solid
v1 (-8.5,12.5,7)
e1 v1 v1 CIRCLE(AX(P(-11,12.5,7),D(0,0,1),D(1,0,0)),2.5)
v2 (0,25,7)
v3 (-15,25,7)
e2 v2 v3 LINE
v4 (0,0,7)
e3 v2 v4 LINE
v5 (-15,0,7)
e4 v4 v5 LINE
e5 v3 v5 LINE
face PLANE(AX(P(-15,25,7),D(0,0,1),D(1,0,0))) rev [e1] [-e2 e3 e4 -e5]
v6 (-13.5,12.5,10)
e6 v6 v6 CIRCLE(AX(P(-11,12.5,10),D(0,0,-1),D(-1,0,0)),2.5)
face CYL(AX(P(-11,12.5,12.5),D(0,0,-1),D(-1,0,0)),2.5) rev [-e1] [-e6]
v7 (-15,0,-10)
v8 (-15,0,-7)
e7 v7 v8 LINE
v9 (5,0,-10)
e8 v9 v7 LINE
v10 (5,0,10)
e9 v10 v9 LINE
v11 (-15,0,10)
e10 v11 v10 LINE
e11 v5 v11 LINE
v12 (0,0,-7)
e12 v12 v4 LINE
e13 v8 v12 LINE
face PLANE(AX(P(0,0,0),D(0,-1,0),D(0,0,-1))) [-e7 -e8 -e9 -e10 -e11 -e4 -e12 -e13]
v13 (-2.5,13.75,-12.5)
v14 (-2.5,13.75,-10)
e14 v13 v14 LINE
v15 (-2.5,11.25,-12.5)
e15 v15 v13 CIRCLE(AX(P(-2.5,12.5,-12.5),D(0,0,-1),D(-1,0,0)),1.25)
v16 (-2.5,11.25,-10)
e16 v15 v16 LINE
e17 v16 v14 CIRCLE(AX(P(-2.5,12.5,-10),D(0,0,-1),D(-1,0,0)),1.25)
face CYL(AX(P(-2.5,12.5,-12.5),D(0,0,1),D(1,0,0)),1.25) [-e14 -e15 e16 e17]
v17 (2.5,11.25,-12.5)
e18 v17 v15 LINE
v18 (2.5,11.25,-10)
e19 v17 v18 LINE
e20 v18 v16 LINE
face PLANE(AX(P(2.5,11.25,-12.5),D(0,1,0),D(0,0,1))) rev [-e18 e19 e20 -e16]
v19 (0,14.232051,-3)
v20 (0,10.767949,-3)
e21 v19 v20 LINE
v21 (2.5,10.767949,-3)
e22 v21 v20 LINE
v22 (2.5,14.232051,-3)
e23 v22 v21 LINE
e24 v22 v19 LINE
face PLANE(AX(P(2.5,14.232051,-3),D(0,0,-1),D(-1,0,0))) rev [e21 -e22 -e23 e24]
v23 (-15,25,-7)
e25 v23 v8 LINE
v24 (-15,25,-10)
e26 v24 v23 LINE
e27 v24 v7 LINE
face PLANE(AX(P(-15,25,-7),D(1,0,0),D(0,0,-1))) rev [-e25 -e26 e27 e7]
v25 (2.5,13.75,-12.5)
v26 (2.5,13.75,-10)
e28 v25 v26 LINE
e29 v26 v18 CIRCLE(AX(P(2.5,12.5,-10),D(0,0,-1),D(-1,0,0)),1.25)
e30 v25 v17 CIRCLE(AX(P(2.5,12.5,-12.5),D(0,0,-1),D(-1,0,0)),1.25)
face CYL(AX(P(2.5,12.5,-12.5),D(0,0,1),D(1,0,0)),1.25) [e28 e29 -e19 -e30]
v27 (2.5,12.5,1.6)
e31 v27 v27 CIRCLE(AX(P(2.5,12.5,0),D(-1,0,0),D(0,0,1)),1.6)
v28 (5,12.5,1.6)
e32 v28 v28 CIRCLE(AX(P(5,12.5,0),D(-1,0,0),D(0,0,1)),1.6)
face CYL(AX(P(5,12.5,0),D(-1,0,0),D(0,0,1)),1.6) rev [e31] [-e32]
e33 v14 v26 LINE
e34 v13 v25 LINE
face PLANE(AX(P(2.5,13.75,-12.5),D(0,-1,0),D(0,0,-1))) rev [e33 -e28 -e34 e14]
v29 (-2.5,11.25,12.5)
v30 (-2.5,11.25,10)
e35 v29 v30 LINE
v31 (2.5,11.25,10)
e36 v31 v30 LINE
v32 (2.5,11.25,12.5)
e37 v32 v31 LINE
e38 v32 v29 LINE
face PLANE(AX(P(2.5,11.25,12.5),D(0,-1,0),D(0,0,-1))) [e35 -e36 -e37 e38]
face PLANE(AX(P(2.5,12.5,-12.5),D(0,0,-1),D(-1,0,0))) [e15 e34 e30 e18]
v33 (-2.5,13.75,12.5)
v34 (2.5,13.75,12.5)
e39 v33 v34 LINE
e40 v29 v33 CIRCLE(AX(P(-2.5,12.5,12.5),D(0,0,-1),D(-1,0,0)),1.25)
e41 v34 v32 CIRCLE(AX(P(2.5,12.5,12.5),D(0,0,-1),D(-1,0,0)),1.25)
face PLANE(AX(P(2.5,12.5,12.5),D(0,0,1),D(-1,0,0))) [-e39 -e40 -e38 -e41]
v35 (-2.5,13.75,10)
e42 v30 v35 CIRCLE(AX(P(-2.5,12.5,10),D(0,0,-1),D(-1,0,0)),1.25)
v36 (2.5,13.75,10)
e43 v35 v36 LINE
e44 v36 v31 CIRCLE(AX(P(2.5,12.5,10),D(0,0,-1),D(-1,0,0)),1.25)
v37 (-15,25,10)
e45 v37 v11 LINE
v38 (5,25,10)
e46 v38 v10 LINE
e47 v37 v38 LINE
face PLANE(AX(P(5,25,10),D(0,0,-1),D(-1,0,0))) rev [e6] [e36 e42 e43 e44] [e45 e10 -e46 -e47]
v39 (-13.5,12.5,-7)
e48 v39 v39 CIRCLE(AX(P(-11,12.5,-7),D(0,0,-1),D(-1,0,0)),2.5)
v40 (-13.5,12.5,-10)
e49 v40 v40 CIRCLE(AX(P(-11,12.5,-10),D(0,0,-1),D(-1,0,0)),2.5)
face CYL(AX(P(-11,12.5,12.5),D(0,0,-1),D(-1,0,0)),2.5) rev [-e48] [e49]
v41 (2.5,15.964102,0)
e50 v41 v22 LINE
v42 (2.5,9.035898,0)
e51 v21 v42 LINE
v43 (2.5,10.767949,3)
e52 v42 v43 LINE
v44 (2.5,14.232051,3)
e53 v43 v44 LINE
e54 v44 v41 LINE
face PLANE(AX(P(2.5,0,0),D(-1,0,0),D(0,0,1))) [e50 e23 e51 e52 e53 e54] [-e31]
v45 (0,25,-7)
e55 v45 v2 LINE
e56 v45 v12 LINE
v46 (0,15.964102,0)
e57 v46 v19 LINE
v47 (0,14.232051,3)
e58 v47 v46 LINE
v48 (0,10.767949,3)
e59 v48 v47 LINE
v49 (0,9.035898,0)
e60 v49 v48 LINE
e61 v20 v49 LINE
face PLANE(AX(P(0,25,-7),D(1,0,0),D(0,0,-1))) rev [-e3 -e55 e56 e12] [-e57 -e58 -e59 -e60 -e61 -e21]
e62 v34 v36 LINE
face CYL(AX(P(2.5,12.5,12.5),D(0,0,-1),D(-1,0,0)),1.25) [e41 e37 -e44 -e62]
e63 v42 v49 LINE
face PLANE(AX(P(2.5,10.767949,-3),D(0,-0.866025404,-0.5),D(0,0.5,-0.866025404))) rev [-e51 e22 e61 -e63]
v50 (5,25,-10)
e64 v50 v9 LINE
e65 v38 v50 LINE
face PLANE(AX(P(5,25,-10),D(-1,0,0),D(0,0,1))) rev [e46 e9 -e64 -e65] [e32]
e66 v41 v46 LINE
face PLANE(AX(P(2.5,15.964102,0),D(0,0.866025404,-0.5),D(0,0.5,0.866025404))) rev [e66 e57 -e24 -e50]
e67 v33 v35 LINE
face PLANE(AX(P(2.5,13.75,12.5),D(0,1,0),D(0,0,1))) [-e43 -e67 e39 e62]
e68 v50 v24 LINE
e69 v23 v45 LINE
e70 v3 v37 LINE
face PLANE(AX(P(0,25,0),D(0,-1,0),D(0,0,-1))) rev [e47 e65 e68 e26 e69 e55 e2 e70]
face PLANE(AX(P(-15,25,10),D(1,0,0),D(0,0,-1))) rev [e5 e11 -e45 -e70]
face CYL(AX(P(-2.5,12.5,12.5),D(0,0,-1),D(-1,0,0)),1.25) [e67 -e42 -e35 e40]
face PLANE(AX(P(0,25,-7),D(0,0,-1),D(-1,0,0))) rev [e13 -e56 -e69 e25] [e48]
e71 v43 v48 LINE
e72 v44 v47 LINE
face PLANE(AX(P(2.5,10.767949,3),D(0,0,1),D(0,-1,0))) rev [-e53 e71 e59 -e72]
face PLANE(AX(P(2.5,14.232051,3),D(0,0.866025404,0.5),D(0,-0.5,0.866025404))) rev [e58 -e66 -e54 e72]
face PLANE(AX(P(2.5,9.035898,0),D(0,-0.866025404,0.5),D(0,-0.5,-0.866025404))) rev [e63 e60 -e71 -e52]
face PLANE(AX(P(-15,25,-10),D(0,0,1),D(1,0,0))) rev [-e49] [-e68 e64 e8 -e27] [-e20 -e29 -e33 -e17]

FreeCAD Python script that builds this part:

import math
import FreeCAD as App
import Part
import Sketcher

V = App.Vector
Q = App.Units.Quantity


def add_polygon(sketch, points):
    """Adds a closed chain of lines whose ends are joined by coincident constraints."""
    first, n = sketch.GeometryCount, len(points)
    for a, b in zip(points, points[1:] + points[:1]):
        sketch.addGeometry(Part.LineSegment(App.Vector(*a, 0), App.Vector(*b, 0)), False)
    for i in range(n):
        sketch.addConstraint(Sketcher.Constraint("Coincident", first + i, 2, first + (i + 1) % n, 1))

doc = App.newDocument("Part")
params = doc.addObject("Spreadsheet::Sheet", "Params")
for row, (alias, value) in enumerate([
    ("sketch1_width", "15 mm"),
    ("sketch1_width2", "20 mm"),
    ("sketch1_height", "14 mm"),
    ("pad1_length", "25 mm"),
    ("pocket1_length", "2.5 mm"),
    ("sketch3_diameter", "3.2 mm"),
    ("pocket2_length", "2.5 mm"),
    ("sketch4_width", "5 mm"),
    ("sketch4_radius", "1.25 mm"),
    ("pad2_length", "2.5 mm"),
    ("sketch5_diameter", "5 mm"),
], start=1):
    params.set(f"A{row}", alias)
    params.set(f"B{row}", "=" + value)
    params.setAlias(f"B{row}", alias)

body = doc.addObject("PartDesign::Body", "Body")

sketch1 = body.newObject("Sketcher::SketchObject", "Sketch")
sketch1.AttachmentSupport = (doc.getObject("XZ_Plane"), [""])
sketch1.MapMode = "FlatFace"
add_polygon(sketch1, [(0, -7), (0, 7), (-15, 7), (-15, 10), (5, 10), (5, -10), (-15, -10), (-15, -7)])
sketch1.addConstraint(Sketcher.Constraint("Vertical", 0))
sketch1.addConstraint(Sketcher.Constraint("Horizontal", 1))
sketch1.addConstraint(Sketcher.Constraint("Vertical", 2))
sketch1.addConstraint(Sketcher.Constraint("Horizontal", 3))
sketch1.addConstraint(Sketcher.Constraint("Vertical", 4))
sketch1.addConstraint(Sketcher.Constraint("Horizontal", 5))
sketch1.addConstraint(Sketcher.Constraint("Vertical", 6))
sketch1.addConstraint(Sketcher.Constraint("Horizontal", 7))
sketch1.addConstraint(Sketcher.Constraint("Symmetric", 0, 2, 7, 2, -1, 1))
sketch1.addConstraint(Sketcher.Constraint("Symmetric", 2, 2, 5, 2, -1))
sketch1.addConstraint(Sketcher.Constraint("Equal", 5, 4))
sketch1.addConstraint(Sketcher.Constraint("DistanceX", 1, 2, 1, 1, Q("15 mm")))
sketch1.addConstraint(Sketcher.Constraint("DistanceX", 3, 1, 3, 2, Q("20 mm")))
sketch1.addConstraint(Sketcher.Constraint("DistanceY", 0, 1, 0, 2, Q("14 mm")))
sketch1.setExpression("Constraints[19]", "Params.sketch1_width")
sketch1.setExpression("Constraints[20]", "Params.sketch1_width2")
sketch1.setExpression("Constraints[21]", "Params.sketch1_height")
pad1 = body.newObject("PartDesign::Pad", "Pad")
pad1.Profile = sketch1
pad1.setExpression("Length", "Params.pad1_length")
pad1.Reversed = True

sketch2 = body.newObject("Sketcher::SketchObject", "Sketch001")
sketch2.AttachmentSupport = (doc.getObject("YZ_Plane"), [""])
sketch2.MapMode = "FlatFace"
add_polygon(sketch2, [(14.2, 3), (16, 0), (14.2, -3), (10.8, -3), (9, 0), (10.8, 3)])
sketch2.addConstraint(Sketcher.Constraint("Horizontal", 2))
sketch2.addConstraint(Sketcher.Constraint("Horizontal", 5))
sketch2.addConstraint(Sketcher.Constraint("Symmetric", 2, 2, 4, 2, -1))
sketch2.addConstraint(Sketcher.Constraint("PointOnObject", 0, 2, -1))
sketch2.addConstraint(Sketcher.Constraint("PointOnObject", 3, 2, -1))
sketch2.addConstraint(Sketcher.Constraint("Parallel", 0, 3))
sketch2.addConstraint(Sketcher.Constraint("Parallel", 1, 4))
sketch2.addConstraint(Sketcher.Constraint("Angle", 0, Q("-60 deg")))
sketch2.addConstraint(Sketcher.Constraint("DistanceY", 1, 2, -1, 1, Q("3 mm")))
sketch2.addConstraint(Sketcher.Constraint("DistanceX", 2, 2, 2, 1, Q("3.464102 mm")))
sketch2.addConstraint(Sketcher.Constraint("DistanceX", -1, 1, 0, 2, Q("15.964102 mm")))
pocket1 = body.newObject("PartDesign::Pocket", "Pocket")
pocket1.Profile = sketch2
pocket1.setExpression("Length", "Params.pocket1_length")
pocket1.Reversed = True

sketch3 = body.newObject("Sketcher::SketchObject", "Sketch002")
sketch3.AttachmentSupport = (doc.getObject("YZ_Plane"), [""])
sketch3.MapMode = "FlatFace"
sketch3.AttachmentOffset = App.Placement(V(0, 0, 2.5), App.Rotation())
sketch3.addGeometry(Part.Circle(V(12.5, 0, 0), V(0, 0, 1), 1.6), False)
sketch3.addConstraint(Sketcher.Constraint("PointOnObject", 0, 3, -1))
sketch3.addConstraint(Sketcher.Constraint("Diameter", 0, Q("3.2 mm")))
sketch3.addConstraint(Sketcher.Constraint("DistanceX", -1, 1, 0, 3, Q("12.5 mm")))
sketch3.setExpression("Constraints[1]", "Params.sketch3_diameter")
pocket2 = body.newObject("PartDesign::Pocket", "Pocket001")
pocket2.Profile = sketch3
pocket2.setExpression("Length", "Params.pocket2_length")
pocket2.Reversed = True

sketch4 = body.newObject("Sketcher::SketchObject", "Sketch003")
sketch4.AttachmentSupport = (doc.getObject("XY_Plane"), [""])
sketch4.MapMode = "FlatFace"
sketch4.AttachmentOffset = App.Placement(V(0, 0, -10), App.Rotation())
sketch4.addGeometry(Part.LineSegment(V(-2.5, 13.8, 0), V(2.5, 13.8, 0)), False)
sketch4.addGeometry(Part.ArcOfCircle(Part.Circle(V(2.5, 12.5, 0), V(0, 0, 1), 1.2), math.radians(-90), math.radians(90)), False)
sketch4.addGeometry(Part.LineSegment(V(2.5, 11.2, 0), V(-2.5, 11.2, 0)), False)
sketch4.addGeometry(Part.ArcOfCircle(Part.Circle(V(-2.5, 12.5, 0), V(0, 0, 1), 1.2), math.radians(90), math.radians(270)), False)
sketch4.addConstraint(Sketcher.Constraint("Tangent", 0, 2, 1, 2))
sketch4.addConstraint(Sketcher.Constraint("Tangent", 1, 1, 2, 1))
sketch4.addConstraint(Sketcher.Constraint("Tangent", 2, 2, 3, 2))
sketch4.addConstraint(Sketcher.Constraint("Tangent", 3, 1, 0, 1))
sketch4.addConstraint(Sketcher.Constraint("Horizontal", 0))
sketch4.addConstraint(Sketcher.Constraint("Horizontal", 2))
sketch4.addConstraint(Sketcher.Constraint("DistanceX", 0, 1, 0, 2, Q("5 mm")))
sketch4.addConstraint(Sketcher.Constraint("Radius", 1, Q("1.25 mm")))
sketch4.addConstraint(Sketcher.Constraint("DistanceX", -1, 1, 1, 3, Q("2.5 mm")))
sketch4.addConstraint(Sketcher.Constraint("DistanceY", -1, 1, 1, 3, Q("12.5 mm")))
sketch4.setExpression("Constraints[6]", "Params.sketch4_width")
sketch4.setExpression("Constraints[7]", "Params.sketch4_radius")
pad2 = body.newObject("PartDesign::Pad", "Pad001")
pad2.Profile = sketch4
pad2.setExpression("Length", "Params.pad2_length")
pad2.Reversed = True
doc.recompute()

mirrored = body.newObject("PartDesign::Mirrored", "Mirrored")
mirrored.Originals = [pad2]
mirrored.MirrorPlane = (doc.getObject("XY_Plane"), [""])
body.Tip = mirrored

sketch5 = body.newObject("Sketcher::SketchObject", "Sketch004")
sketch5.AttachmentSupport = (doc.getObject("XY_Plane"), [""])
sketch5.MapMode = "FlatFace"
sketch5.AttachmentOffset = App.Placement(V(0, 0, -10), App.Rotation())
sketch5.addGeometry(Part.Circle(V(-11, 12.5, 0), V(0, 0, 1), 2.5), False)
sketch5.addConstraint(Sketcher.Constraint("Diameter", 0, Q("5 mm")))
sketch5.addConstraint(Sketcher.Constraint("DistanceX", 0, 3, -1, 1, Q("11 mm")))
sketch5.addConstraint(Sketcher.Constraint("DistanceY", -1, 1, 0, 3, Q("12.5 mm")))
sketch5.setExpression("Constraints[0]", "Params.sketch5_diameter")
pocket3 = body.newObject("PartDesign::Pocket", "Pocket002")
pocket3.Profile = sketch5
pocket3.Type = "ThroughAll"
pocket3.Reversed = True

doc.recompute()
